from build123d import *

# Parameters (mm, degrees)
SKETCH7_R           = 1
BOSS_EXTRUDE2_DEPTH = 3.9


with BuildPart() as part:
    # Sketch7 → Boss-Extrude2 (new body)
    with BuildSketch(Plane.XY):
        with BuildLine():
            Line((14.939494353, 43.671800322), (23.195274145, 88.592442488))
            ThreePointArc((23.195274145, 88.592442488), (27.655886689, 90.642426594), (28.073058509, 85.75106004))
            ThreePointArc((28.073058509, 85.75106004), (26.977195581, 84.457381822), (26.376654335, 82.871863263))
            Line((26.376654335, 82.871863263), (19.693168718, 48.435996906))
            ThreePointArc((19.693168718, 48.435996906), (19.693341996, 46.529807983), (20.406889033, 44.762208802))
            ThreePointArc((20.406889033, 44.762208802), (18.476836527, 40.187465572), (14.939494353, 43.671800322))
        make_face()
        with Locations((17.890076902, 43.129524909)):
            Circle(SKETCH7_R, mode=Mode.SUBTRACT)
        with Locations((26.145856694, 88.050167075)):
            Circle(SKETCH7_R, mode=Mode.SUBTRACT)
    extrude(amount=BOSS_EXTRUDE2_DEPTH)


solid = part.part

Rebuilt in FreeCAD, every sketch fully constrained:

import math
import FreeCAD as App
import Part
import Sketcher

doc = App.newDocument("Part")
body = doc.addObject("PartDesign::Body", "Body")

# Sketch on XY plane
sketch1 = body.newObject("Sketcher::SketchObject", "Sketch")
sketch1.AttachmentSupport = (doc.getObject("XY_Plane"), [""])
sketch1.MapMode = "FlatFace"
sketch1.addGeometry([
    Part.LineSegment(App.Vector(23.195274, 88.592442, 0), App.Vector(14.939494, 43.6718, 0)),  # 0
    Part.ArcOfCircle(Part.Circle(App.Vector(17.890077, 43.129525, 0), App.Vector(0, 0, 1), 3), math.radians(169.586058), math.radians(392.971921)),  # 1
    Part.ArcOfCircle(Part.Circle(App.Vector(24.601576, 47.483349, 0), App.Vector(0, 0, 1), 5), math.radians(169.016304), math.radians(212.971921)),  # 2
    Part.LineSegment(App.Vector(19.693169, 48.435997, 0), App.Vector(26.376654, 82.871863, 0)),  # 3
    Part.ArcOfCircle(Part.Circle(App.Vector(31.285062, 81.919215, 0), App.Vector(0, 0, 1), 5), math.radians(129.97106), math.radians(169.016304)),  # 4
    Part.ArcOfCircle(Part.Circle(App.Vector(26.145857, 88.050167, 0), App.Vector(0, 0, 1), 3), math.radians(-50.02894), math.radians(169.586058)),  # 5
    Part.Circle(App.Vector(17.890077, 43.129525, 0), App.Vector(0, 0, 1), 1),  # 6
    Part.Circle(App.Vector(26.145857, 88.050167, 0), App.Vector(0, 0, 1), 1),  # 7
], False)
sketch1.addConstraint([
    Sketcher.Constraint("Tangent", 0, 2, 1, 1),
    Sketcher.Constraint("Tangent", 1, 2, 2, 2),
    Sketcher.Constraint("Tangent", 2, 1, 3, 1),
    Sketcher.Constraint("Tangent", 3, 2, 4, 2),
    Sketcher.Constraint("Tangent", 4, 1, 5, 1),
    Sketcher.Constraint("Tangent", 5, 2, 0, 1),
    Sketcher.Constraint("Coincident", 6, 3, 1, 3),
    Sketcher.Constraint("Coincident", 7, 3, 5, 3),
    Sketcher.Constraint("Equal", 2, 4),
    Sketcher.Constraint("Equal", 1, 5),
    Sketcher.Constraint("Equal", 6, 7),
    Sketcher.Constraint("Diameter", 6, 2.0),
    Sketcher.Constraint("Radius", 1, 3.0),
    Sketcher.Constraint("Radius", 2, 5.0),
    Sketcher.Constraint("DistanceY", -1, 1, 0, 2, 43.6718),
    Sketcher.Constraint("DistanceX", 1, 3, 2, 3, 6.711499),
    Sketcher.Constraint("DistanceX", 7, 3, 4, 1, 1.927202),
    Sketcher.Constraint("Distance", 0, 45.67299),
    Sketcher.Constraint("DistanceY", -1, 1, 2, 3, 47.483349),
    Sketcher.Constraint("DistanceX", -1, 1, 4, 3, 31.285062),
])
pad1 = body.newObject("PartDesign::Pad", "Pad")
pad1.Profile = sketch1
pad1.Length = 3.9

doc.recompute()
